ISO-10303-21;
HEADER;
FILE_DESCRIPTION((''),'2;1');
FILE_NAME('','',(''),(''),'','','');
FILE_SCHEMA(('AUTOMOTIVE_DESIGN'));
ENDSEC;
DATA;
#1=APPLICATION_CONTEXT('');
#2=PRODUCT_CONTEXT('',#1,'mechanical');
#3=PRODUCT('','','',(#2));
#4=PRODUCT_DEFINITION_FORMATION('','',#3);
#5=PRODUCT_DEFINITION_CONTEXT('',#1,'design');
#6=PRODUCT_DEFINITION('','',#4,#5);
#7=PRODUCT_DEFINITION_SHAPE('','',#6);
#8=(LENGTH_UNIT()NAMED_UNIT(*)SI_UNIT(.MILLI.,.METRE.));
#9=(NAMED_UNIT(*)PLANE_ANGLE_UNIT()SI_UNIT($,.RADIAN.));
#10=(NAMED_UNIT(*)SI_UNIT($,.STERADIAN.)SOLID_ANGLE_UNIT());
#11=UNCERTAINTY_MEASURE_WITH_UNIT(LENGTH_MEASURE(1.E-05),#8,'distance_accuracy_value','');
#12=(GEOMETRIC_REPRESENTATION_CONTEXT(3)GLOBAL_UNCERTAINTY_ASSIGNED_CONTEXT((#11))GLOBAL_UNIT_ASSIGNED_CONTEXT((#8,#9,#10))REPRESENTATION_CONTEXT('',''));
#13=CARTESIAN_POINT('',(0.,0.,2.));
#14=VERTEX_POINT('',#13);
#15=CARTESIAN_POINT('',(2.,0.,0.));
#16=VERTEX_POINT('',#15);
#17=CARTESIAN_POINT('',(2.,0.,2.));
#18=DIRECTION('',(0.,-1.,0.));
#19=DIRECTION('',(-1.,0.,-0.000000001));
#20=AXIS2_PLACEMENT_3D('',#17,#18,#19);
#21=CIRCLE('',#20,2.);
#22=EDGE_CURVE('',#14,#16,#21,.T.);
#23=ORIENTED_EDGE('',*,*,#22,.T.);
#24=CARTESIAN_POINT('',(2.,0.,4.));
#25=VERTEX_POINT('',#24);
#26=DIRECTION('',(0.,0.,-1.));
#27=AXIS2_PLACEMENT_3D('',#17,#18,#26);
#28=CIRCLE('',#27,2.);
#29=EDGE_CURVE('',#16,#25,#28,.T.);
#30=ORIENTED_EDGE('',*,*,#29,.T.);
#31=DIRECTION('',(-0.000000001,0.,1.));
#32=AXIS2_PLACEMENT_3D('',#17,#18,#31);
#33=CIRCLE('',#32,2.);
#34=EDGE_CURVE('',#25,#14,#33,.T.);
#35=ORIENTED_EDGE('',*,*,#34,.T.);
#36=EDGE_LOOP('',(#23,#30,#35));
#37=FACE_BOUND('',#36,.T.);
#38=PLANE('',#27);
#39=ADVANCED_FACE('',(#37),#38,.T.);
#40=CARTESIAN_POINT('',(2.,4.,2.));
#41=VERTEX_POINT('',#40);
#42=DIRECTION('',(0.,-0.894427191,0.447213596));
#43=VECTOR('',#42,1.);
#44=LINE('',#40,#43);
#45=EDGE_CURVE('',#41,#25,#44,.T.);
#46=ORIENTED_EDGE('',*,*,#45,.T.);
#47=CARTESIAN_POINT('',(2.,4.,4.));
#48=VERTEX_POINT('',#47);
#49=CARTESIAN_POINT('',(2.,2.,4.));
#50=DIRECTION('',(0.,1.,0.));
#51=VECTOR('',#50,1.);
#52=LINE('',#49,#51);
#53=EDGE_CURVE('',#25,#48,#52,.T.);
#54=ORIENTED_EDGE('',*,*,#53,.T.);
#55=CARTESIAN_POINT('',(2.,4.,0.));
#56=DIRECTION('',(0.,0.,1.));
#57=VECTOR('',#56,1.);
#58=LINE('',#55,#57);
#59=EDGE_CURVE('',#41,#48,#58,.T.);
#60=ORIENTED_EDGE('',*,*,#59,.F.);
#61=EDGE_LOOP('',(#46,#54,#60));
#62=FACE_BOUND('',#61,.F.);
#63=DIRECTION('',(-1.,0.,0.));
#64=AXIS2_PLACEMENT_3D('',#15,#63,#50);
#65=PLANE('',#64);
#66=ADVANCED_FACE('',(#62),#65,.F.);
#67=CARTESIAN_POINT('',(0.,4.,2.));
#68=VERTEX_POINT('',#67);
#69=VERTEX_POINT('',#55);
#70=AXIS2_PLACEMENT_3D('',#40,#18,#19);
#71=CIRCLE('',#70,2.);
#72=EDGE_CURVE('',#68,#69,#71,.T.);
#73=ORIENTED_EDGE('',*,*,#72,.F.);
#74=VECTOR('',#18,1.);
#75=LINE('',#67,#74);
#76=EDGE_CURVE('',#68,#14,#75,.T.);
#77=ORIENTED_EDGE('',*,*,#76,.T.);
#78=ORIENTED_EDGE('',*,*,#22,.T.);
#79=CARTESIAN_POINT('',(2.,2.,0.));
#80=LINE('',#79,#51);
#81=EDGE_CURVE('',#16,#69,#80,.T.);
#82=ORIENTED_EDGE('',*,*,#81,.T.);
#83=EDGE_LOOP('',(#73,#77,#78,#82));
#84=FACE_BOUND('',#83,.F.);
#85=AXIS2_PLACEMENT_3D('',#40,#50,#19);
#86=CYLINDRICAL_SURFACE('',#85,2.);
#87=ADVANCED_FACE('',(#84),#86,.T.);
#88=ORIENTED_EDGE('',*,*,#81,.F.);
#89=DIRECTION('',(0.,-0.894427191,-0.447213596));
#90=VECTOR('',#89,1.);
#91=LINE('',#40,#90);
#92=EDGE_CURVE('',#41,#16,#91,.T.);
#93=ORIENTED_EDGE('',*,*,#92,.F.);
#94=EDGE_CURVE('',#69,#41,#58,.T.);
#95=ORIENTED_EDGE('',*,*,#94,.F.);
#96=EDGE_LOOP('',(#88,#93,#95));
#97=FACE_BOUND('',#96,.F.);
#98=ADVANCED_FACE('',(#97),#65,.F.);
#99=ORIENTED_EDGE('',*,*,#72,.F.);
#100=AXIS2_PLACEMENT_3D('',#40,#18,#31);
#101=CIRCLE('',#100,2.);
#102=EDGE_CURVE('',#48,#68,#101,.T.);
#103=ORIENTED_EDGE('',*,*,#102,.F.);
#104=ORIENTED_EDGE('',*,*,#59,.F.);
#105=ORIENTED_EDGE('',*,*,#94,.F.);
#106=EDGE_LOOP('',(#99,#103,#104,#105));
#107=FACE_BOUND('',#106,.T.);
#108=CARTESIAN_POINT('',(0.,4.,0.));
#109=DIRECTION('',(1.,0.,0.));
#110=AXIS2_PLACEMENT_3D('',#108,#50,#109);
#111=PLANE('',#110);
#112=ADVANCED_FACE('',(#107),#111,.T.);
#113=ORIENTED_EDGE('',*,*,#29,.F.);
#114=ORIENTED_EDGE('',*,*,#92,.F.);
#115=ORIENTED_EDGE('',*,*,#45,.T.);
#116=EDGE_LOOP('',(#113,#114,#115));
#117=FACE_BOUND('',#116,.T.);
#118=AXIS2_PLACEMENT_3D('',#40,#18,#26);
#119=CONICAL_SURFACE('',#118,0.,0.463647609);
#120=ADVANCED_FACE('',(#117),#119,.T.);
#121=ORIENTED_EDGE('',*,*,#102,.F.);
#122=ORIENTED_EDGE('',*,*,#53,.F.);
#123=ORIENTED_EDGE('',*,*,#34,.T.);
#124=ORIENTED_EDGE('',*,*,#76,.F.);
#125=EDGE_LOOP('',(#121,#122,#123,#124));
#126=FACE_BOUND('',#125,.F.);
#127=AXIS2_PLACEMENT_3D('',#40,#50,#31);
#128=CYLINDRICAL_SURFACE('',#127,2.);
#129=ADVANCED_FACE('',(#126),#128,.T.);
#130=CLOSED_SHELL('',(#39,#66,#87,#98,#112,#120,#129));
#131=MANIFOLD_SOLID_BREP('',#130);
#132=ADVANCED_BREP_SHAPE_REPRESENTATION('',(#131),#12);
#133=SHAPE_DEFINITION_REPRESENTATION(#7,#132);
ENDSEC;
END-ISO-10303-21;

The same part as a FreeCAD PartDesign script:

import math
import FreeCAD as App
import Part
import Sketcher
Q = App.Units.Quantity


def add_polygon(sketch, points):
    """Adds a closed chain of lines whose ends are joined by coincident constraints."""
    first, n = sketch.GeometryCount, len(points)
    for a, b in zip(points, points[1:] + points[:1]):
        sketch.addGeometry(Part.LineSegment(App.Vector(*a, 0), App.Vector(*b, 0)), False)
    for i in range(n):
        sketch.addConstraint(Sketcher.Constraint("Coincident", first + i, 2, first + (i + 1) % n, 1))

doc = App.newDocument("Part")
body = doc.addObject("PartDesign::Body", "Body")

sketch1 = body.newObject("Sketcher::SketchObject", "Sketch")
sketch1.AttachmentSupport = (doc.getObject("XY_Plane"), [""])
sketch1.MapMode = "FlatFace"
add_polygon(sketch1, [(0, 4), (0, 0), (2, 0), (2, 4)])
sketch1.addConstraint([
    Sketcher.Constraint("Vertical", 0),
    Sketcher.Constraint("Horizontal", 1),
    Sketcher.Constraint("Vertical", 2),
    Sketcher.Constraint("Horizontal", 3),
    Sketcher.Constraint("Coincident", 0, 2, -1, 1),
    Sketcher.Constraint("DistanceX", 1, 1, 1, 2, Q("2 mm")),
    Sketcher.Constraint("DistanceY", 0, 2, 0, 1, Q("4 mm")),
])
pad1 = body.newObject("PartDesign::Pad", "Pad")
pad1.Profile = sketch1
pad1.Length = 4

sketch2 = body.newObject("Sketcher::SketchObject", "Sketch001")
sketch2.AttachmentSupport = (doc.getObject("YZ_Plane"), [""])
sketch2.MapMode = "FlatFace"
sketch2.AttachmentOffset = App.Placement(App.Vector(0, 0, 2), App.Rotation())
add_polygon(sketch2, [(4, 2), (0, 2), (0, 0)])
sketch2.addGeometry(Part.LineSegment(App.Vector(4, 2, 0), App.Vector(0, 2, 0)), True)
sketch2.addConstraint([
    Sketcher.Constraint("Horizontal", 0),
    Sketcher.Constraint("Vertical", 1),
    Sketcher.Constraint("Horizontal", 3),
    Sketcher.Constraint("Coincident", 1, 2, -1, 1),
    Sketcher.Constraint("Coincident", 3, 1, 2, 2),
    Sketcher.Constraint("PointOnObject", 3, 2, -2),
    Sketcher.Constraint("DistanceX", 0, 2, 0, 1, Q("4 mm")),
    Sketcher.Constraint("DistanceY", 1, 2, 1, 1, Q("2 mm")),
])
revolution = body.newObject("PartDesign::Revolution", "Revolution")
revolution.Profile = sketch2
revolution.ReferenceAxis = (sketch2, ["Axis0"])
revolution.Angle = 180

sketch3 = body.newObject("Sketcher::SketchObject", "Sketch002")
sketch3.AttachmentSupport = (doc.getObject("XZ_Plane"), [""])
sketch3.MapMode = "FlatFace"
sketch3.AttachmentOffset = App.Placement(App.Vector(0, 0, -4), App.Rotation())
sketch3.addGeometry([
    Part.LineSegment(App.Vector(0, 4, 0), App.Vector(2, 4, 0)),
    Part.ArcOfCircle(Part.Circle(App.Vector(2, 2, 0), App.Vector(0, 0, 1), 2), math.radians(90), math.radians(180)),
    Part.LineSegment(App.Vector(0, 2, 0), App.Vector(0, 4, 0)),
    Part.ArcOfCircle(Part.Circle(App.Vector(2, 2, 0), App.Vector(0, 0, 1), 2), math.radians(-180), math.radians(-90)),
    Part.LineSegment(App.Vector(2, 0, 0), App.Vector(0, 0, 0)),
    Part.LineSegment(App.Vector(0, 0, 0), App.Vector(0, 2, 0)),
], False)
sketch3.addConstraint([
    Sketcher.Constraint("Tangent", 0, 2, 1, 1),
    Sketcher.Constraint("Tangent", 1, 2, 2, 1),
    Sketcher.Constraint("Coincident", 2, 2, 0, 1),
    Sketcher.Constraint("Tangent", 3, 2, 4, 1),
    Sketcher.Constraint("Coincident", 4, 2, 5, 1),
    Sketcher.Constraint("Tangent", 5, 2, 3, 1),
    Sketcher.Constraint("Horizontal", 0),
    Sketcher.Constraint("Vertical", 2),
    Sketcher.Constraint("Horizontal", 4),
    Sketcher.Constraint("Vertical", 5),
    Sketcher.Constraint("Coincident", 4, 2, -1, 1),
    Sketcher.Constraint("Coincident", 3, 3, 1, 3),
    Sketcher.Constraint("Equal", 1, 3),
    Sketcher.Constraint("Radius", 1, Q("2 mm")),
])
pocket1 = body.newObject("PartDesign::Pocket", "Pocket")
pocket1.Profile = sketch3
pocket1.Length = 4
pocket1.Reversed = True

doc.recompute()
